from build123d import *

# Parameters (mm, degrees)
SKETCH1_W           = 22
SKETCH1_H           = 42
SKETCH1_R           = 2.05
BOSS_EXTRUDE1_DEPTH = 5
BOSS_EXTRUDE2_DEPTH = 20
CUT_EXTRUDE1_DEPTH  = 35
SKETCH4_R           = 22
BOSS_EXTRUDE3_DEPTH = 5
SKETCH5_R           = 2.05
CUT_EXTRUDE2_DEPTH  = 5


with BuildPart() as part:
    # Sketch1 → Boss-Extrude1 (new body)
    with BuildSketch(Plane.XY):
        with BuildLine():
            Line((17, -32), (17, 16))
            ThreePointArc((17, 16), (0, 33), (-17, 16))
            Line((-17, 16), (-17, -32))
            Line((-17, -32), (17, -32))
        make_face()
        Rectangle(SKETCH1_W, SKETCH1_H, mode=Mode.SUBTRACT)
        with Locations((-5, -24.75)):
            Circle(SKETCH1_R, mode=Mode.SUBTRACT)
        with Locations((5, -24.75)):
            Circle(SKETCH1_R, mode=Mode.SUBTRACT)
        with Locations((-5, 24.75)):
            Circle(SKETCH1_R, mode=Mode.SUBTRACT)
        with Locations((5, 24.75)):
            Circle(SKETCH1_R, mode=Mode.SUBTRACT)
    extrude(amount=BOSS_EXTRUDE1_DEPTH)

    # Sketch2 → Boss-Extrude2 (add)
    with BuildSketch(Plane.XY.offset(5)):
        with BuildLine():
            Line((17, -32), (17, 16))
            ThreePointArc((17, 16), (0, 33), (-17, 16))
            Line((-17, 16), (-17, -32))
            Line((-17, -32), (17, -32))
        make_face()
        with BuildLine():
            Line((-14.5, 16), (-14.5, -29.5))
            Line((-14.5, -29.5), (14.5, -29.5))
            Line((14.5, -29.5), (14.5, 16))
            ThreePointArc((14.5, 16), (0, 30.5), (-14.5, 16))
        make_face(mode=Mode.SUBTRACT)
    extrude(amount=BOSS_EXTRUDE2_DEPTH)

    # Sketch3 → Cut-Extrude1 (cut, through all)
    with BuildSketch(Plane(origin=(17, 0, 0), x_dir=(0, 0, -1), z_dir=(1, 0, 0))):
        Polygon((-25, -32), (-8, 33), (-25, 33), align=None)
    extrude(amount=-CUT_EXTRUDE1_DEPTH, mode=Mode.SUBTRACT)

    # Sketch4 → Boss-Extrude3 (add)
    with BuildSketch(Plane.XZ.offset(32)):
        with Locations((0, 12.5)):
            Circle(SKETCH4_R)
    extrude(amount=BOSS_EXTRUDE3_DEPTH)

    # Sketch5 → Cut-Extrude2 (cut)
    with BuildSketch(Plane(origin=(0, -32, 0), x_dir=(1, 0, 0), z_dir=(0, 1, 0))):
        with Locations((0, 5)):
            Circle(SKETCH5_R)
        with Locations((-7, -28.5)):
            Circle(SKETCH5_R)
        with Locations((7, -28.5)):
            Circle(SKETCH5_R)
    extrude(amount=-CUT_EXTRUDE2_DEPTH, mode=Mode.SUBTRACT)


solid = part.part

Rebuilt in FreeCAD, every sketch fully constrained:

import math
import FreeCAD as App
import Part
import Sketcher

V = App.Vector

doc = App.newDocument("Part")
body = doc.addObject("PartDesign::Body", "Body")

# Sketch on XY plane
sketch1 = body.newObject("Sketcher::SketchObject", "Sketch")
sketch1.AttachmentSupport = (doc.getObject("XY_Plane"), [""])
sketch1.MapMode = "FlatFace"
sketch1.addGeometry(Part.LineSegment(V(17, -32, 0), V(17, 16, 0)), False)
sketch1.addGeometry(Part.ArcOfCircle(Part.Circle(V(0, 16, 0), V(0, 0, 1), 17), math.radians(0), math.radians(180)), False)
sketch1.addGeometry(Part.LineSegment(V(-17, 16, 0), V(-17, -32, 0)), False)
sketch1.addGeometry(Part.LineSegment(V(-17, -32, 0), V(17, -32, 0)), False)
sketch1.addGeometry(Part.Circle(V(-5, -24.8, 0), V(0, 0, 1), 2), False)
sketch1.addGeometry(Part.Circle(V(5, -24.8, 0), V(0, 0, 1), 2), False)
sketch1.addGeometry(Part.LineSegment(V(11, -21, 0), V(-11, -21, 0)), False)
sketch1.addGeometry(Part.LineSegment(V(-11, -21, 0), V(-11, 21, 0)), False)
sketch1.addGeometry(Part.LineSegment(V(-11, 21, 0), V(11, 21, 0)), False)
sketch1.addGeometry(Part.LineSegment(V(11, 21, 0), V(11, -21, 0)), False)
sketch1.addGeometry(Part.Circle(V(-5, 24.8, 0), V(0, 0, 1), 2), False)
sketch1.addGeometry(Part.Circle(V(5, 24.8, 0), V(0, 0, 1), 2), False)
sketch1.addConstraint(Sketcher.Constraint("Tangent", 0, 2, 1, 1))
sketch1.addConstraint(Sketcher.Constraint("Tangent", 1, 2, 2, 1))
sketch1.addConstraint(Sketcher.Constraint("Coincident", 2, 2, 3, 1))
sketch1.addConstraint(Sketcher.Constraint("Coincident", 3, 2, 0, 1))
sketch1.addConstraint(Sketcher.Constraint("Coincident", 6, 2, 7, 1))
sketch1.addConstraint(Sketcher.Constraint("Coincident", 7, 2, 8, 1))
sketch1.addConstraint(Sketcher.Constraint("Coincident", 8, 2, 9, 1))
sketch1.addConstraint(Sketcher.Constraint("Coincident", 9, 2, 6, 1))
sketch1.addConstraint(Sketcher.Constraint("Vertical", 0))
sketch1.addConstraint(Sketcher.Constraint("Vertical", 2))
sketch1.addConstraint(Sketcher.Constraint("Horizontal", 3))
sketch1.addConstraint(Sketcher.Constraint("Horizontal", 6))
sketch1.addConstraint(Sketcher.Constraint("Vertical", 7))
sketch1.addConstraint(Sketcher.Constraint("Horizontal", 8))
sketch1.addConstraint(Sketcher.Constraint("Vertical", 9))
sketch1.addConstraint(Sketcher.Constraint("Equal", 4, 5))
sketch1.addConstraint(Sketcher.Constraint("Equal", 5, 10))
sketch1.addConstraint(Sketcher.Constraint("Equal", 10, 11))
sketch1.addConstraint(Sketcher.Constraint("Symmetric", 5, 3, 10, 3, -1, 1))
sketch1.addConstraint(Sketcher.Constraint("Symmetric", 4, 3, 11, 3, -1, 1))
sketch1.addConstraint(Sketcher.Constraint("Symmetric", 6, 2, 8, 2, -1, 1))
sketch1.addConstraint(Sketcher.Constraint("Symmetric", 4, 3, 5, 3, -2))
sketch1.addConstraint(Sketcher.Constraint("PointOnObject", 1, 3, -2))
sketch1.addConstraint(Sketcher.Constraint("Radius", 1, 17.0))
sketch1.addConstraint(Sketcher.Constraint("Diameter", 4, 4.1))
sketch1.addConstraint(Sketcher.Constraint("DistanceX", 6, 2, 6, 1, 22.0))
sketch1.addConstraint(Sketcher.Constraint("DistanceY", 0, 1, 0, 2, 48.0))
sketch1.addConstraint(Sketcher.Constraint("DistanceY", 7, 1, 7, 2, 42.0))
sketch1.addConstraint(Sketcher.Constraint("DistanceY", -1, 1, 1, 3, 16.0))
sketch1.addConstraint(Sketcher.Constraint("DistanceX", 4, 3, -1, 1, 5.0))
sketch1.addConstraint(Sketcher.Constraint("DistanceY", 4, 3, 10, 3, 49.5))
pad1 = body.newObject("PartDesign::Pad", "Pad")
pad1.Profile = sketch1
pad1.Length = 5

# Sketch on XY plane
sketch2 = body.newObject("Sketcher::SketchObject", "Sketch001")
sketch2.AttachmentSupport = (doc.getObject("XY_Plane"), [""])
sketch2.MapMode = "FlatFace"
sketch2.AttachmentOffset = App.Placement(V(0, 0, 5), App.Rotation())
sketch2.addGeometry(Part.LineSegment(V(17, -32, 0), V(17, 16, 0)), False)
sketch2.addGeometry(Part.ArcOfCircle(Part.Circle(V(0, 16, 0), V(0, 0, 1), 17), math.radians(0), math.radians(180)), False)
sketch2.addGeometry(Part.LineSegment(V(-17, 16, 0), V(-17, -32, 0)), False)
sketch2.addGeometry(Part.LineSegment(V(-17, -32, 0), V(17, -32, 0)), False)
sketch2.addGeometry(Part.LineSegment(V(-14, -30, 0), V(-14, 16, 0)), False)
sketch2.addGeometry(Part.ArcOfCircle(Part.Circle(V(0, 16, 0), V(0, 0, 1), 14), math.radians(0), math.radians(180)), False)
sketch2.addGeometry(Part.LineSegment(V(14, 16, 0), V(14, -30, 0)), False)
sketch2.addGeometry(Part.LineSegment(V(14, -30, 0), V(-14, -30, 0)), False)
sketch2.addConstraint(Sketcher.Constraint("Tangent", 0, 2, 1, 1))
sketch2.addConstraint(Sketcher.Constraint("Tangent", 1, 2, 2, 1))
sketch2.addConstraint(Sketcher.Constraint("Coincident", 2, 2, 3, 1))
sketch2.addConstraint(Sketcher.Constraint("Coincident", 3, 2, 0, 1))
sketch2.addConstraint(Sketcher.Constraint("Tangent", 4, 2, 5, 2))
sketch2.addConstraint(Sketcher.Constraint("Tangent", 5, 1, 6, 1))
sketch2.addConstraint(Sketcher.Constraint("Coincident", 6, 2, 7, 1))
sketch2.addConstraint(Sketcher.Constraint("Coincident", 7, 2, 4, 1))
sketch2.addConstraint(Sketcher.Constraint("Vertical", 0))
sketch2.addConstraint(Sketcher.Constraint("Vertical", 2))
sketch2.addConstraint(Sketcher.Constraint("Horizontal", 3))
sketch2.addConstraint(Sketcher.Constraint("Vertical", 4))
sketch2.addConstraint(Sketcher.Constraint("Vertical", 6))
sketch2.addConstraint(Sketcher.Constraint("Horizontal", 7))
sketch2.addConstraint(Sketcher.Constraint("Coincident", 5, 3, 1, 3))
sketch2.addConstraint(Sketcher.Constraint("PointOnObject", 1, 3, -2))
sketch2.addConstraint(Sketcher.Constraint("Radius", 1, 17.0))
sketch2.addConstraint(Sketcher.Constraint("Radius", 5, 14.5))
sketch2.addConstraint(Sketcher.Constraint("DistanceY", 0, 1, 0, 2, 48.0))
sketch2.addConstraint(Sketcher.Constraint("DistanceY", 4, 1, 4, 2, 45.5))
sketch2.addConstraint(Sketcher.Constraint("DistanceY", -1, 1, 1, 3, 16.0))
pad2 = body.newObject("PartDesign::Pad", "Pad001")
pad2.Profile = sketch2
pad2.Length = 20

# Sketch on YZ plane
sketch3 = body.newObject("Sketcher::SketchObject", "Sketch002")
sketch3.AttachmentSupport = (doc.getObject("YZ_Plane"), [""])
sketch3.MapMode = "FlatFace"
sketch3.AttachmentOffset = App.Placement(V(0, 0, 17), App.Rotation())
sketch3.addGeometry(Part.LineSegment(V(-32, 25, 0), V(33, 8, 0)), False)
sketch3.addGeometry(Part.LineSegment(V(33, 8, 0), V(33, 25, 0)), False)
sketch3.addGeometry(Part.LineSegment(V(33, 25, 0), V(-32, 25, 0)), False)
sketch3.addConstraint(Sketcher.Constraint("Coincident", 0, 2, 1, 1))
sketch3.addConstraint(Sketcher.Constraint("Coincident", 1, 2, 2, 1))
sketch3.addConstraint(Sketcher.Constraint("Coincident", 2, 2, 0, 1))
sketch3.addConstraint(Sketcher.Constraint("Vertical", 1))
sketch3.addConstraint(Sketcher.Constraint("Horizontal", 2))
sketch3.addConstraint(Sketcher.Constraint("DistanceX", 2, 2, 2, 1, 65.0))
sketch3.addConstraint(Sketcher.Constraint("DistanceY", 1, 1, 1, 2, 17.0))
sketch3.addConstraint(Sketcher.Constraint("DistanceX", -1, 1, 0, 2, 33.0))
sketch3.addConstraint(Sketcher.Constraint("DistanceY", -1, 1, 0, 2, 8.0))
pocket1 = body.newObject("PartDesign::Pocket", "Pocket")
pocket1.Profile = sketch3
pocket1.Type = "ThroughAll"

# Sketch on XZ plane
sketch4 = body.newObject("Sketcher::SketchObject", "Sketch003")
sketch4.AttachmentSupport = (doc.getObject("XZ_Plane"), [""])
sketch4.MapMode = "FlatFace"
sketch4.AttachmentOffset = App.Placement(V(0, 0, 32), App.Rotation())
sketch4.addGeometry(Part.Circle(V(0, 12, 0), V(0, 0, 1), 22), False)
sketch4.addConstraint(Sketcher.Constraint("PointOnObject", 0, 3, -2))
sketch4.addConstraint(Sketcher.Constraint("Diameter", 0, 44.0))
sketch4.addConstraint(Sketcher.Constraint("DistanceY", -1, 1, 0, 3, 12.5))
pad3 = body.newObject("PartDesign::Pad", "Pad002")
pad3.Profile = sketch4
pad3.Length = 5

# Sketch on XZ plane
sketch5 = body.newObject("Sketcher::SketchObject", "Sketch004")
sketch5.AttachmentSupport = (doc.getObject("XZ_Plane"), [""])
sketch5.MapMode = "FlatFace"
sketch5.AttachmentOffset = App.Placement(V(0, 0, 32), App.Rotation())
sketch5.addGeometry(Part.Circle(V(0, -5, 0), V(0, 0, 1), 2), False)
sketch5.addGeometry(Part.Circle(V(-7, 28.5, 0), V(0, 0, 1), 2), False)
sketch5.addGeometry(Part.Circle(V(7, 28.5, 0), V(0, 0, 1), 2), False)
sketch5.addConstraint(Sketcher.Constraint("Equal", 0, 1))
sketch5.addConstraint(Sketcher.Constraint("Equal", 1, 2))
sketch5.addConstraint(Sketcher.Constraint("Symmetric", 1, 3, 2, 3, -2))
sketch5.addConstraint(Sketcher.Constraint("PointOnObject", 0, 3, -2))
sketch5.addConstraint(Sketcher.Constraint("Diameter", 0, 4.1))
sketch5.addConstraint(Sketcher.Constraint("DistanceY", 0, 3, -1, 1, 5.0))
sketch5.addConstraint(Sketcher.Constraint("DistanceX", 1, 3, -1, 1, 7.0))
sketch5.addConstraint(Sketcher.Constraint("DistanceY", -1, 1, 1, 3, 28.5))
pocket2 = body.newObject("PartDesign::Pocket", "Pocket001")
pocket2.Profile = sketch5
pocket2.Length = 5
pocket2.Reversed = True

doc.recompute()
